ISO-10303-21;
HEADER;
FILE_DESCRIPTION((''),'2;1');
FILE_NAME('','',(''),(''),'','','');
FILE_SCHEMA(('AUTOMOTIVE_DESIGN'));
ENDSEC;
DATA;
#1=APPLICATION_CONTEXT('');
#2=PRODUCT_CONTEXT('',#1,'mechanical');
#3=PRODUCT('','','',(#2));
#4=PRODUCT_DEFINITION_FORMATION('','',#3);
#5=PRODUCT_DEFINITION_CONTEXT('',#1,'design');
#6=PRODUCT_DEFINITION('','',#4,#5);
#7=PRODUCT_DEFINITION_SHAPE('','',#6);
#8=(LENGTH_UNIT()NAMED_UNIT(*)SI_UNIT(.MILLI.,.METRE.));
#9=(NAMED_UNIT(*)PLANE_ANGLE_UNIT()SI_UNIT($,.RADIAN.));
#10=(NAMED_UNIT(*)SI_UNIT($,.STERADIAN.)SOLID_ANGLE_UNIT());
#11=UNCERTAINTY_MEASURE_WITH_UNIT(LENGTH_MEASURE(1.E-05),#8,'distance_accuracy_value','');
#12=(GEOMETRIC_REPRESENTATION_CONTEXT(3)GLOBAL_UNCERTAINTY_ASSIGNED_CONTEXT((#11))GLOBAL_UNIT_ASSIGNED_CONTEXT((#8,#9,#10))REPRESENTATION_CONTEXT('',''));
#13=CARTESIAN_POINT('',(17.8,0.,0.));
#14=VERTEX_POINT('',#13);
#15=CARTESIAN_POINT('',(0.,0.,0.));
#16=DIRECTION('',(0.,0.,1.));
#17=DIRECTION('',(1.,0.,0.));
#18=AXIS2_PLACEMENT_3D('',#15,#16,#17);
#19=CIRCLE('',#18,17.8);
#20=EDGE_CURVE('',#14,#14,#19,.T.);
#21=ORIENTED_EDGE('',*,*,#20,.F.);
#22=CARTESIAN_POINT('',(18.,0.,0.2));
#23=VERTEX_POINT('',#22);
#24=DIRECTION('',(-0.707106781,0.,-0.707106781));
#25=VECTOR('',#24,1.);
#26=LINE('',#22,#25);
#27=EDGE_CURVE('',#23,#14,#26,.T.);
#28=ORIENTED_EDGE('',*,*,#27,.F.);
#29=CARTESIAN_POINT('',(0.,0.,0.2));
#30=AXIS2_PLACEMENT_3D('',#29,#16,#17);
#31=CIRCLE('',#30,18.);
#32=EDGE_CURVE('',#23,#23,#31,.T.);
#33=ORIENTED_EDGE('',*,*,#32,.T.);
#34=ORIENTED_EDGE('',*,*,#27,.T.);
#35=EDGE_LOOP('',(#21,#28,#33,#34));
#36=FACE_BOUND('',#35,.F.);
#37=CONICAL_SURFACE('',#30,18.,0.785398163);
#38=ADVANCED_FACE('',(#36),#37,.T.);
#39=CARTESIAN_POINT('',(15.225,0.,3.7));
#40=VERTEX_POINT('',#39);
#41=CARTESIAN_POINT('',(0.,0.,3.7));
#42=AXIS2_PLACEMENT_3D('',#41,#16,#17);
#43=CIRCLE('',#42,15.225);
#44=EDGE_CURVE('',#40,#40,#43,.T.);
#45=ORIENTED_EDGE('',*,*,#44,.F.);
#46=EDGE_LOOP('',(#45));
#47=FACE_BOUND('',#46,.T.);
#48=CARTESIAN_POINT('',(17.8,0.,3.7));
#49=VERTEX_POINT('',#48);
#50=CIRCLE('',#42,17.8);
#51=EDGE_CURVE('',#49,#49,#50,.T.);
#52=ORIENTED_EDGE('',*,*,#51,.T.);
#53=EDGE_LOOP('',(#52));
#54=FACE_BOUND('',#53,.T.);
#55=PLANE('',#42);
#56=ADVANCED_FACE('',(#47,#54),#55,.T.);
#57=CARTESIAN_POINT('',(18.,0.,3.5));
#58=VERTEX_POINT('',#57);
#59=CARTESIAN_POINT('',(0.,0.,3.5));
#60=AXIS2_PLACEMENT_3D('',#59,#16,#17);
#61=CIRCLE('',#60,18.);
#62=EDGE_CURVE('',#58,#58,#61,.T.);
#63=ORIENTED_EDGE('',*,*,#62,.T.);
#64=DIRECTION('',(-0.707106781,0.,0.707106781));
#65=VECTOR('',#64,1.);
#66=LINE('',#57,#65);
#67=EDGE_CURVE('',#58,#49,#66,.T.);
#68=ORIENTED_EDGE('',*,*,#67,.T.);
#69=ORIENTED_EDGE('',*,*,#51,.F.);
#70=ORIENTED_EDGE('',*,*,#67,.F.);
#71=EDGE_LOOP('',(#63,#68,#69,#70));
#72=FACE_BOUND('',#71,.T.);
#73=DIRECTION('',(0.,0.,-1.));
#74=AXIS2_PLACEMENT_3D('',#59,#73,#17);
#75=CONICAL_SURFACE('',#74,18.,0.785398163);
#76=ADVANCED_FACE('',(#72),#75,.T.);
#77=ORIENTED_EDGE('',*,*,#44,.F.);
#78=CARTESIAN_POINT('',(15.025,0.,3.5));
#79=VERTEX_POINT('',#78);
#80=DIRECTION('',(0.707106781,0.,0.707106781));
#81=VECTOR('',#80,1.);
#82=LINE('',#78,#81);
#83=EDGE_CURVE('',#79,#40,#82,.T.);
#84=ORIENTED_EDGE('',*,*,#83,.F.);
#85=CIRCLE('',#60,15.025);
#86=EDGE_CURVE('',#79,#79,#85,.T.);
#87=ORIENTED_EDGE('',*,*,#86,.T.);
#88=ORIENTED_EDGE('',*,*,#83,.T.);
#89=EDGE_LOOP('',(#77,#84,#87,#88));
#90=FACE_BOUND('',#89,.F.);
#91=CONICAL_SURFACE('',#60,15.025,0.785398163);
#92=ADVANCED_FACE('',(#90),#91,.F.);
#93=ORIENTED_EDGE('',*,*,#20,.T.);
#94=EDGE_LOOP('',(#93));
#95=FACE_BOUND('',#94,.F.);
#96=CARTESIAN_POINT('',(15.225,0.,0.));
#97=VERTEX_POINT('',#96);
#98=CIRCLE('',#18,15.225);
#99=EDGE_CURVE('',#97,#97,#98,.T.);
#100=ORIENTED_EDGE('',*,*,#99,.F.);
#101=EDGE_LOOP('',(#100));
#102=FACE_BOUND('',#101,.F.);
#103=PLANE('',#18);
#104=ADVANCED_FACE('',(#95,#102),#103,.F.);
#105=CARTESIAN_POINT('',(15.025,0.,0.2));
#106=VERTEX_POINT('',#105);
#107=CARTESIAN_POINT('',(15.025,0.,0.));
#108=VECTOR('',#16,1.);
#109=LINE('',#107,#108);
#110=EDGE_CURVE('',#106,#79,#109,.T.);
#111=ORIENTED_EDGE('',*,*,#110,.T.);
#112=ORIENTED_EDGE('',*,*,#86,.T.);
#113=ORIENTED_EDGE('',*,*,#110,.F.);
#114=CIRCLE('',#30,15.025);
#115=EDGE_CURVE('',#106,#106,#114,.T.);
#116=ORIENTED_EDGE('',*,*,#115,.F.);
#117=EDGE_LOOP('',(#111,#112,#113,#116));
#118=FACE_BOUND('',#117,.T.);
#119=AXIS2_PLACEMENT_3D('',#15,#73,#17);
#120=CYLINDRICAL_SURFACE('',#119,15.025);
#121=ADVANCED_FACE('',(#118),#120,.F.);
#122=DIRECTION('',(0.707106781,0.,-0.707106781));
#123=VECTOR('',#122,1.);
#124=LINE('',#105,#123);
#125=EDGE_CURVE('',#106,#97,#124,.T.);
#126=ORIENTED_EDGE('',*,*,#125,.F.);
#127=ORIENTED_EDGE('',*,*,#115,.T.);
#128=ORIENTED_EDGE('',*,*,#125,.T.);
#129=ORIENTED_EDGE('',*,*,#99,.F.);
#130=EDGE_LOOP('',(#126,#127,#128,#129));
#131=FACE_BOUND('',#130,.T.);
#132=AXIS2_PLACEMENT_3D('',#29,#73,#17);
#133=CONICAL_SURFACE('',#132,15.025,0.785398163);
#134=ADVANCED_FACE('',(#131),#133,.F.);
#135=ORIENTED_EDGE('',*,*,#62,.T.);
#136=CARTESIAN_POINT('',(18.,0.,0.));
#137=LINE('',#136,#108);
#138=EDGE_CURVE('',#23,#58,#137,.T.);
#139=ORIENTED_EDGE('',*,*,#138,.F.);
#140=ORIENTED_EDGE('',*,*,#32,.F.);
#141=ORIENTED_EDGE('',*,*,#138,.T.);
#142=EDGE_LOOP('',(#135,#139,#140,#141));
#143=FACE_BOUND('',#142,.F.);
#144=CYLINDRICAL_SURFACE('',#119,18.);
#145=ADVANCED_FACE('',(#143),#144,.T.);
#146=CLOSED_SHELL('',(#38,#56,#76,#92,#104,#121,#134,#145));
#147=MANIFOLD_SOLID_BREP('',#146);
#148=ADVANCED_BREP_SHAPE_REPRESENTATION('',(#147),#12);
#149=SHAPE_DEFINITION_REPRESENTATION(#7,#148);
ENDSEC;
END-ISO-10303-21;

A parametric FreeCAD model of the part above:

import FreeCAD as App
import Part
import Sketcher
from FreeCAD import Vector


def edges_at(feature, points):
    """Names of the edges that pass closest to the given points."""
    edges = feature.Shape.Edges
    near = lambda p: min(range(len(edges)), key=lambda i: edges[i].distToShape(Part.Vertex(*p))[0])
    return sorted({f"Edge{near(p) + 1}" for p in points})

doc = App.newDocument("Part")
body = doc.addObject("PartDesign::Body", "Body")

# Sketch on XY plane
sketch1 = body.newObject("Sketcher::SketchObject", "Sketch")
sketch1.AttachmentSupport = (doc.getObject("XY_Plane"), [""])
sketch1.MapMode = "FlatFace"
sketch1.addGeometry(Part.Circle(Vector(0, 0, 0), Vector(0, 0, 1), 18), False)
sketch1.addGeometry(Part.Circle(Vector(0, 0, 0), Vector(0, 0, 1), 15), False)
sketch1.addConstraint(Sketcher.Constraint("Coincident", 0, 3, -1, 1))
sketch1.addConstraint(Sketcher.Constraint("Coincident", 1, 3, -1, 1))
sketch1.addConstraint(Sketcher.Constraint("Diameter", 0, 36.0))
sketch1.addConstraint(Sketcher.Constraint("Diameter", 1, 30.05))
pad1 = body.newObject("PartDesign::Pad", "Pad")
pad1.Profile = sketch1
pad1.Length = 3.7
doc.recompute()

chamfer = body.newObject("PartDesign::Chamfer", "Chamfer")
chamfer.Base = (pad1, edges_at(pad1, [
    (-18, 0, 3.7),
    (-18, 0, 0),
    (-15.025, 0, 0),
    (-15.025, 0, 3.7),
]))
chamfer.Size = 0.2

doc.recompute()
